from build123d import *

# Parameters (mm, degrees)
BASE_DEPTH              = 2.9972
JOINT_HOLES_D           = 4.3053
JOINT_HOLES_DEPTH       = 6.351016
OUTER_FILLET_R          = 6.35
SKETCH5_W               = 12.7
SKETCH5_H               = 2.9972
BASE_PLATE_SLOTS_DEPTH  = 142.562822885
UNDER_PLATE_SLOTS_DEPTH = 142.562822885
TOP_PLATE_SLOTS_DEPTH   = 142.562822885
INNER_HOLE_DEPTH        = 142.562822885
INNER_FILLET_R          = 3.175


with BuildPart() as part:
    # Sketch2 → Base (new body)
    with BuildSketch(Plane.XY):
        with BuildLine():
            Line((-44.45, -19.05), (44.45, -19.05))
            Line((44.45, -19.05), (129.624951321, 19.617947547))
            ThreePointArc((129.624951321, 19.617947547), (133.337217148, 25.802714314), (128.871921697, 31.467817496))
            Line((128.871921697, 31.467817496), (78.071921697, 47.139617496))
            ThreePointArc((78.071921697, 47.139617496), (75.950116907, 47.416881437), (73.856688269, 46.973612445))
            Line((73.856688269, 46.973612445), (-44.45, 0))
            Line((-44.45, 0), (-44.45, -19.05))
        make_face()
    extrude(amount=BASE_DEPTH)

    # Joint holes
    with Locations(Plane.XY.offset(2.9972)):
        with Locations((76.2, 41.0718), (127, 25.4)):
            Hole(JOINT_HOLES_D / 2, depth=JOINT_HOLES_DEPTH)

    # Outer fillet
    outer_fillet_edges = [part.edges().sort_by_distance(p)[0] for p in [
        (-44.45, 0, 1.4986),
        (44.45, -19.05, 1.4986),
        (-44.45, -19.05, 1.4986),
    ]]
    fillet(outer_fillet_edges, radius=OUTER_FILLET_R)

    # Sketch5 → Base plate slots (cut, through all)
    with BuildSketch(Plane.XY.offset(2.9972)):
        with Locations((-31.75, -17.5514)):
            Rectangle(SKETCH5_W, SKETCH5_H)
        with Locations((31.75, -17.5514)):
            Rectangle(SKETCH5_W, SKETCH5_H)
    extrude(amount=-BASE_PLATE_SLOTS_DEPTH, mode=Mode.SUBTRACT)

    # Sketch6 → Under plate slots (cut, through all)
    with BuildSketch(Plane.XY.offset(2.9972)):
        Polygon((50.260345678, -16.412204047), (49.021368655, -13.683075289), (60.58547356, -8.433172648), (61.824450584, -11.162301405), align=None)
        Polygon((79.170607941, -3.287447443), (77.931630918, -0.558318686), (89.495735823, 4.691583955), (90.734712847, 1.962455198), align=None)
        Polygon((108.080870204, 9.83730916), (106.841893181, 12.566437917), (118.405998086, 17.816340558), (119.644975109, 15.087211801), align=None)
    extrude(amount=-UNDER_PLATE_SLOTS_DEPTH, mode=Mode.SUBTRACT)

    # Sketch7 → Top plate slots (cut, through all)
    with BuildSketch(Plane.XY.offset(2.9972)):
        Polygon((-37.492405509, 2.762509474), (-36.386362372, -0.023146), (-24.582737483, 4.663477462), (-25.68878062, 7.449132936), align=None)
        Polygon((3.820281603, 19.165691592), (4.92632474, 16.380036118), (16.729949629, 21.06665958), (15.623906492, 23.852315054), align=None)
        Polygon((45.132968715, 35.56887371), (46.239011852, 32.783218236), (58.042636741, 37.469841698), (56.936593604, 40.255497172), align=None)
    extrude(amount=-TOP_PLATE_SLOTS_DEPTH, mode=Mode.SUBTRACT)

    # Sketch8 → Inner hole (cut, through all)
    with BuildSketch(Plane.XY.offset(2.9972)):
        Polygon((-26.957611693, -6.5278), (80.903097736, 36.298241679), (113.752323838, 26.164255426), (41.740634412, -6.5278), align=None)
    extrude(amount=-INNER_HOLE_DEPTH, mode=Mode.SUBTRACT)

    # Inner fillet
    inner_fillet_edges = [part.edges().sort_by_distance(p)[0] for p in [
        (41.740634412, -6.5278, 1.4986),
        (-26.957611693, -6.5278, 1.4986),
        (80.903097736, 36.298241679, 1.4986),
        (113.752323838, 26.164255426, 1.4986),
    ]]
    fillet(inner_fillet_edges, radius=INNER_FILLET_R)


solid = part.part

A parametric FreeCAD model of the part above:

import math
import FreeCAD as App
import Part
import Sketcher
from FreeCAD import Vector
Q = App.Units.Quantity


def edges_at(feature, points):
    """Names of the edges that pass closest to the given points."""
    edges = feature.Shape.Edges
    near = lambda p: min(range(len(edges)), key=lambda i: edges[i].distToShape(Part.Vertex(*p))[0])
    return sorted({f"Edge{near(p) + 1}" for p in points})

doc = App.newDocument("Part")
body = doc.addObject("PartDesign::Body", "Body")

# Sketch on XY plane
sketch1 = body.newObject("Sketcher::SketchObject", "Sketch")
sketch1.AttachmentSupport = (doc.getObject("XY_Plane"), [""])
sketch1.MapMode = "FlatFace"
sketch1.addGeometry([
    Part.LineSegment(Vector(-44.45, -19.05, 0), Vector(44.45, -19.05, 0)),  # 0
    Part.LineSegment(Vector(44.45, -19.05, 0), Vector(129.624951, 19.617948, 0)),  # 1
    Part.ArcOfCircle(Part.Circle(Vector(127, 25.4, 0), Vector(0, 0, 1), 6.35), math.radians(-65.582777), math.radians(72.855006)),  # 2
    Part.LineSegment(Vector(128.871922, 31.467817, 0), Vector(78.071922, 47.139617, 0)),  # 3
    Part.ArcOfCircle(Part.Circle(Vector(76.2, 41.0718, 0), Vector(0, 0, 1), 6.35), math.radians(72.855006), math.radians(111.655528)),  # 4
    Part.LineSegment(Vector(73.856688, 46.973612, 0), Vector(-44.45, 0, 0)),  # 5
    Part.LineSegment(Vector(-44.45, 0, 0), Vector(-44.45, -19.05, 0)),  # 6
], False)
sketch1.addConstraint([
    Sketcher.Constraint("Coincident", 0, 2, 1, 1),
    Sketcher.Constraint("Tangent", 1, 2, 2, 1),
    Sketcher.Constraint("Tangent", 2, 2, 3, 1),
    Sketcher.Constraint("Tangent", 3, 2, 4, 1),
    Sketcher.Constraint("Tangent", 4, 2, 5, 1),
    Sketcher.Constraint("Coincident", 5, 2, 6, 1),
    Sketcher.Constraint("Coincident", 6, 2, 0, 1),
    Sketcher.Constraint("Horizontal", 0),
    Sketcher.Constraint("Vertical", 6),
    Sketcher.Constraint("Equal", 2, 4),
    Sketcher.Constraint("PointOnObject", 5, 2, -1),
    Sketcher.Constraint("Radius", 2, Q("0.25 in")),
    Sketcher.Constraint("DistanceX", 0, 1, 0, 2, Q("3.5 in")),
    Sketcher.Constraint("DistanceX", -1, 1, 2, 3, Q("5 in")),
    Sketcher.Constraint("DistanceY", -1, 1, 2, 3, Q("1 in")),
    Sketcher.Constraint("DistanceX", -1, 1, 4, 3, Q("3 in")),
    Sketcher.Constraint("DistanceY", 6, 2, 6, 1, Q("0.75 in")),
    Sketcher.Constraint("DistanceX", -1, 1, 0, 2, Q("1.75 in")),
    Sketcher.Constraint("DistanceY", -1, 1, 4, 3, Q("1.617 in")),
])
pad1 = body.newObject("PartDesign::Pad", "Pad")
pad1.Profile = sketch1
pad1.Length = Q("0.118 in")

# Sketch on XY plane
sketch2 = body.newObject("Sketcher::SketchObject", "Sketch001")
sketch2.AttachmentSupport = (doc.getObject("XY_Plane"), [""])
sketch2.MapMode = "FlatFace"
sketch2.AttachmentOffset = App.Placement(Vector(0, 0, 0.118 * 25.4), App.Rotation())
sketch2.addGeometry([
    Part.Circle(Vector(76.2, 41.0718, 0), Vector(0, 0, 1), 2.15265),
    Part.Circle(Vector(127, 25.4, 0), Vector(0, 0, 1), 2.15265),
], False)
sketch2.addConstraint([
    Sketcher.Constraint("Equal", 0, 1),
    Sketcher.Constraint("DistanceX", -1, 1, 0, 3, Q("3 in")),
    Sketcher.Constraint("DistanceX", -1, 1, 1, 3, Q("5 in")),
    Sketcher.Constraint("DistanceY", -1, 1, 1, 3, Q("1 in")),
    Sketcher.Constraint("Diameter", 0, Q("0.1695 in")),
    Sketcher.Constraint("DistanceY", -1, 1, 0, 3, Q("1.617 in")),
])
doc.recompute()
hole = body.newObject("PartDesign::Hole", "Hole")
hole.Profile = sketch2
hole.ThreadType = "None"
hole.Diameter = Q("0.1695 in")
hole.DepthType = "Dimension"
hole.Depth = 6.351016
hole.DrillPoint = "Flat"
doc.recompute()

fillet = body.newObject("PartDesign::Fillet", "Fillet")
fillet.Base = (hole, edges_at(hole, [(-44.45, 0, 1.499), (44.45, -19.05, 1.499), (-44.45, -19.05, 1.499)]))
fillet.Radius = Q("0.25 in")

# Sketch on XY plane
sketch3 = body.newObject("Sketcher::SketchObject", "Sketch002")
sketch3.AttachmentSupport = (doc.getObject("XY_Plane"), [""])
sketch3.MapMode = "FlatFace"
sketch3.AttachmentOffset = App.Placement(Vector(0, 0, 0.118 * 25.4), App.Rotation())
sketch3.addGeometry([
    Part.LineSegment(Vector(-38.1, -16.0528, 0), Vector(-38.1, -19.05, 0)),  # 0
    Part.LineSegment(Vector(-38.1, -19.05, 0), Vector(-25.4, -19.05, 0)),  # 1
    Part.LineSegment(Vector(-25.4, -19.05, 0), Vector(-25.4, -16.0528, 0)),  # 2
    Part.LineSegment(Vector(-25.4, -16.0528, 0), Vector(-38.1, -16.0528, 0)),  # 3
    Part.LineSegment(Vector(25.4, -16.0528, 0), Vector(25.4, -19.05, 0)),  # 4
    Part.LineSegment(Vector(25.4, -19.05, 0), Vector(38.1, -19.05, 0)),  # 5
    Part.LineSegment(Vector(38.1, -19.05, 0), Vector(38.1, -16.0528, 0)),  # 6
    Part.LineSegment(Vector(38.1, -16.0528, 0), Vector(25.4, -16.0528, 0)),  # 7
], False)
sketch3.addConstraint([
    Sketcher.Constraint("Coincident", 0, 2, 1, 1),
    Sketcher.Constraint("Coincident", 1, 2, 2, 1),
    Sketcher.Constraint("Coincident", 2, 2, 3, 1),
    Sketcher.Constraint("Coincident", 3, 2, 0, 1),
    Sketcher.Constraint("Coincident", 4, 2, 5, 1),
    Sketcher.Constraint("Coincident", 5, 2, 6, 1),
    Sketcher.Constraint("Coincident", 6, 2, 7, 1),
    Sketcher.Constraint("Coincident", 7, 2, 4, 1),
    Sketcher.Constraint("Vertical", 0),
    Sketcher.Constraint("Horizontal", 1),
    Sketcher.Constraint("Vertical", 2),
    Sketcher.Constraint("Horizontal", 3),
    Sketcher.Constraint("Vertical", 4),
    Sketcher.Constraint("Horizontal", 5),
    Sketcher.Constraint("Vertical", 6),
    Sketcher.Constraint("Horizontal", 7),
    Sketcher.Constraint("Symmetric", 1, 2, 4, 2, -2),
    Sketcher.Constraint("Symmetric", 3, 2, 6, 2, -2),
    Sketcher.Constraint("DistanceX", 1, 1, 1, 2, Q("0.5 in")),
    Sketcher.Constraint("DistanceX", 1, 2, -1, 1, Q("1 in")),
    Sketcher.Constraint("DistanceY", 0, 2, 0, 1, Q("0.118 in")),
    Sketcher.Constraint("DistanceY", 0, 2, -1, 1, Q("0.75 in")),
])
pocket1 = body.newObject("PartDesign::Pocket", "Pocket")
pocket1.Profile = sketch3
pocket1.Type = "ThroughAll"

# Sketch on XY plane
sketch4 = body.newObject("Sketcher::SketchObject", "Sketch003")
sketch4.AttachmentSupport = (doc.getObject("XY_Plane"), [""])
sketch4.MapMode = "FlatFace"
sketch4.AttachmentOffset = App.Placement(Vector(0, 0, 0.118 * 25.4), App.Rotation())
sketch4.addGeometry([
    Part.LineSegment(Vector(49.021369, -13.683075, 0), Vector(50.260346, -16.412204, 0)),  # 0
    Part.LineSegment(Vector(50.260346, -16.412204, 0), Vector(61.824451, -11.162301, 0)),  # 1
    Part.LineSegment(Vector(61.824451, -11.162301, 0), Vector(60.585474, -8.433173, 0)),  # 2
    Part.LineSegment(Vector(60.585474, -8.433173, 0), Vector(49.021369, -13.683075, 0)),  # 3
    Part.LineSegment(Vector(77.931631, -0.558319, 0), Vector(79.170608, -3.287447, 0)),  # 4
    Part.LineSegment(Vector(79.170608, -3.287447, 0), Vector(90.734713, 1.962455, 0)),  # 5
    Part.LineSegment(Vector(90.734713, 1.962455, 0), Vector(89.495736, 4.691584, 0)),  # 6
    Part.LineSegment(Vector(89.495736, 4.691584, 0), Vector(77.931631, -0.558319, 0)),  # 7
    Part.LineSegment(Vector(106.841893, 12.566438, 0), Vector(108.08087, 9.837309, 0)),  # 8
    Part.LineSegment(Vector(108.08087, 9.837309, 0), Vector(119.644975, 15.087212, 0)),  # 9
    Part.LineSegment(Vector(119.644975, 15.087212, 0), Vector(118.405998, 17.816341, 0)),  # 10
    Part.LineSegment(Vector(118.405998, 17.816341, 0), Vector(106.841893, 12.566438, 0)),  # 11
], False)
sketch4.addConstraint([
    Sketcher.Constraint("Coincident", 0, 2, 1, 1),
    Sketcher.Constraint("Coincident", 1, 2, 2, 1),
    Sketcher.Constraint("Coincident", 2, 2, 3, 1),
    Sketcher.Constraint("Coincident", 3, 2, 0, 1),
    Sketcher.Constraint("Coincident", 4, 2, 5, 1),
    Sketcher.Constraint("Coincident", 5, 2, 6, 1),
    Sketcher.Constraint("Coincident", 6, 2, 7, 1),
    Sketcher.Constraint("Coincident", 7, 2, 4, 1),
    Sketcher.Constraint("Coincident", 8, 2, 9, 1),
    Sketcher.Constraint("Coincident", 9, 2, 10, 1),
    Sketcher.Constraint("Coincident", 10, 2, 11, 1),
    Sketcher.Constraint("Coincident", 11, 2, 8, 1),
    Sketcher.Constraint("Perpendicular", 0, 1),
    Sketcher.Constraint("Perpendicular", 1, 2),
    Sketcher.Constraint("Perpendicular", 2, 3),
    Sketcher.Constraint("Perpendicular", 3, 4),
    Sketcher.Constraint("Perpendicular", 4, 5),
    Sketcher.Constraint("Perpendicular", 5, 6),
    Sketcher.Constraint("Perpendicular", 6, 7),
    Sketcher.Constraint("Perpendicular", 7, 8),
    Sketcher.Constraint("Perpendicular", 8, 9),
    Sketcher.Constraint("Perpendicular", 9, 10),
    Sketcher.Constraint("Perpendicular", 10, 11),
    Sketcher.Constraint("Equal", 2, 4),
    Sketcher.Constraint("Equal", 3, 5),
    Sketcher.Constraint("Equal", 6, 8),
    Sketcher.Constraint("Equal", 7, 9),
    Sketcher.Constraint("Distance", 1, Q("0.5 in")),
    Sketcher.Constraint("Distance", 0, Q("0.118 in")),
    Sketcher.Constraint("DistanceY", 1, 2, -1, 1, 11.162301),
    Sketcher.Constraint("DistanceX", -1, 1, 10, 2, 118.405998),
    Sketcher.Constraint("DistanceX", -1, 1, 1, 2, 61.824451),
    Sketcher.Constraint("DistanceX", -1, 1, 3, 2, 49.021369),
    Sketcher.Constraint("DistanceX", -1, 1, 7, 2, 77.931631),
    Sketcher.Constraint("DistanceY", 7, 2, -1, 1, 0.558319),
    Sketcher.Constraint("DistanceY", -1, 1, 8, 2, 9.837309),
])
pocket2 = body.newObject("PartDesign::Pocket", "Pocket001")
pocket2.Profile = sketch4
pocket2.Type = "ThroughAll"

# Sketch on XY plane
sketch5 = body.newObject("Sketcher::SketchObject", "Sketch004")
sketch5.AttachmentSupport = (doc.getObject("XY_Plane"), [""])
sketch5.MapMode = "FlatFace"
sketch5.AttachmentOffset = App.Placement(Vector(0, 0, 0.118 * 25.4), App.Rotation())
sketch5.addGeometry([
    Part.LineSegment(Vector(-37.492406, 2.762509, 0), Vector(-36.386362, -0.023146, 0)),  # 0
    Part.LineSegment(Vector(-36.386362, -0.023146, 0), Vector(-24.582737, 4.663477, 0)),  # 1
    Part.LineSegment(Vector(-24.582737, 4.663477, 0), Vector(-25.688781, 7.449133, 0)),  # 2
    Part.LineSegment(Vector(-25.688781, 7.449133, 0), Vector(-37.492406, 2.762509, 0)),  # 3
    Part.LineSegment(Vector(3.820282, 19.165692, 0), Vector(4.926325, 16.380036, 0)),  # 4
    Part.LineSegment(Vector(4.926325, 16.380036, 0), Vector(16.72995, 21.06666, 0)),  # 5
    Part.LineSegment(Vector(16.72995, 21.06666, 0), Vector(15.623906, 23.852315, 0)),  # 6
    Part.LineSegment(Vector(15.623906, 23.852315, 0), Vector(3.820282, 19.165692, 0)),  # 7
    Part.LineSegment(Vector(45.132969, 35.568874, 0), Vector(46.239012, 32.783218, 0)),  # 8
    Part.LineSegment(Vector(46.239012, 32.783218, 0), Vector(58.042637, 37.469842, 0)),  # 9
    Part.LineSegment(Vector(58.042637, 37.469842, 0), Vector(56.936594, 40.255497, 0)),  # 10
    Part.LineSegment(Vector(56.936594, 40.255497, 0), Vector(45.132969, 35.568874, 0)),  # 11
], False)
sketch5.addConstraint([
    Sketcher.Constraint("Coincident", 0, 2, 1, 1),
    Sketcher.Constraint("Coincident", 1, 2, 2, 1),
    Sketcher.Constraint("Coincident", 2, 2, 3, 1),
    Sketcher.Constraint("Coincident", 3, 2, 0, 1),
    Sketcher.Constraint("Coincident", 4, 2, 5, 1),
    Sketcher.Constraint("Coincident", 5, 2, 6, 1),
    Sketcher.Constraint("Coincident", 6, 2, 7, 1),
    Sketcher.Constraint("Coincident", 7, 2, 4, 1),
    Sketcher.Constraint("Coincident", 8, 2, 9, 1),
    Sketcher.Constraint("Coincident", 9, 2, 10, 1),
    Sketcher.Constraint("Coincident", 10, 2, 11, 1),
    Sketcher.Constraint("Coincident", 11, 2, 8, 1),
    Sketcher.Constraint("Perpendicular", 0, 1),
    Sketcher.Constraint("Perpendicular", 1, 2),
    Sketcher.Constraint("Perpendicular", 2, 3),
    Sketcher.Constraint("Perpendicular", 3, 4),
    Sketcher.Constraint("Perpendicular", 4, 5),
    Sketcher.Constraint("Perpendicular", 5, 6),
    Sketcher.Constraint("Perpendicular", 6, 7),
    Sketcher.Constraint("Perpendicular", 7, 8),
    Sketcher.Constraint("Perpendicular", 8, 9),
    Sketcher.Constraint("Perpendicular", 9, 10),
    Sketcher.Constraint("Perpendicular", 10, 11),
    Sketcher.Constraint("Equal", 2, 4),
    Sketcher.Constraint("Equal", 3, 5),
    Sketcher.Constraint("Equal", 6, 8),
    Sketcher.Constraint("Equal", 7, 9),
    Sketcher.Constraint("Distance", 1, Q("0.5 in")),
    Sketcher.Constraint("Distance", 0, Q("0.118 in")),
    Sketcher.Constraint("DistanceX", 2, 2, -1, 1, 25.688781),
    Sketcher.Constraint("DistanceY", -1, 1, 3, 2, 2.762509),
    Sketcher.Constraint("DistanceX", -1, 1, 5, 2, 16.72995),
    Sketcher.Constraint("DistanceY", -1, 1, 5, 2, 21.06666),
    Sketcher.Constraint("DistanceX", -1, 1, 7, 2, 3.820282),
    Sketcher.Constraint("DistanceX", -1, 1, 8, 2, 46.239012),
    Sketcher.Constraint("DistanceY", -1, 1, 8, 2, 32.783218),
])
pocket3 = body.newObject("PartDesign::Pocket", "Pocket002")
pocket3.Profile = sketch5
pocket3.Type = "ThroughAll"

# Sketch on XY plane
sketch6 = body.newObject("Sketcher::SketchObject", "Sketch005")
sketch6.AttachmentSupport = (doc.getObject("XY_Plane"), [""])
sketch6.MapMode = "FlatFace"
sketch6.AttachmentOffset = App.Placement(Vector(0, 0, 0.118 * 25.4), App.Rotation())
sketch6.addGeometry([
    Part.LineSegment(Vector(80.903098, 36.298242, 0), Vector(-26.957612, -6.5278, 0)),
    Part.LineSegment(Vector(-26.957612, -6.5278, 0), Vector(41.740634, -6.5278, 0)),
    Part.LineSegment(Vector(41.740634, -6.5278, 0), Vector(113.752324, 26.164255, 0)),
    Part.LineSegment(Vector(113.752324, 26.164255, 0), Vector(80.903098, 36.298242, 0)),
], False)
sketch6.addConstraint([
    Sketcher.Constraint("Coincident", 0, 2, 1, 1),
    Sketcher.Constraint("Coincident", 1, 2, 2, 1),
    Sketcher.Constraint("Coincident", 2, 2, 3, 1),
    Sketcher.Constraint("Coincident", 3, 2, 0, 1),
    Sketcher.Constraint("Horizontal", 1),
    Sketcher.Constraint("DistanceY", 0, 2, -1, 1, Q("0.257 in")),
    Sketcher.Constraint("DistanceX", 1, 1, 1, 2, 68.698246),
    Sketcher.Constraint("DistanceX", 0, 2, -1, 1, 26.957612),
    Sketcher.Constraint("DistanceY", -1, 1, 3, 2, 36.298242),
    Sketcher.Constraint("DistanceX", 1, 2, 2, 2, 72.011689),
    Sketcher.Constraint("DistanceX", 0, 2, 3, 2, 107.860709),
    Sketcher.Constraint("Distance", 2, 79.085105),
])
pocket4 = body.newObject("PartDesign::Pocket", "Pocket003")
pocket4.Profile = sketch6
pocket4.Type = "ThroughAll"
doc.recompute()

fillet2 = body.newObject("PartDesign::Fillet", "Fillet001")
fillet2.Base = (pocket4, edges_at(pocket4, [
    (41.741, -6.528, 1.499),
    (-26.958, -6.528, 1.499),
    (80.903, 36.298, 1.499),
    (113.752, 26.164, 1.499),
]))
fillet2.Radius = Q("0.125 in")

doc.recompute()
